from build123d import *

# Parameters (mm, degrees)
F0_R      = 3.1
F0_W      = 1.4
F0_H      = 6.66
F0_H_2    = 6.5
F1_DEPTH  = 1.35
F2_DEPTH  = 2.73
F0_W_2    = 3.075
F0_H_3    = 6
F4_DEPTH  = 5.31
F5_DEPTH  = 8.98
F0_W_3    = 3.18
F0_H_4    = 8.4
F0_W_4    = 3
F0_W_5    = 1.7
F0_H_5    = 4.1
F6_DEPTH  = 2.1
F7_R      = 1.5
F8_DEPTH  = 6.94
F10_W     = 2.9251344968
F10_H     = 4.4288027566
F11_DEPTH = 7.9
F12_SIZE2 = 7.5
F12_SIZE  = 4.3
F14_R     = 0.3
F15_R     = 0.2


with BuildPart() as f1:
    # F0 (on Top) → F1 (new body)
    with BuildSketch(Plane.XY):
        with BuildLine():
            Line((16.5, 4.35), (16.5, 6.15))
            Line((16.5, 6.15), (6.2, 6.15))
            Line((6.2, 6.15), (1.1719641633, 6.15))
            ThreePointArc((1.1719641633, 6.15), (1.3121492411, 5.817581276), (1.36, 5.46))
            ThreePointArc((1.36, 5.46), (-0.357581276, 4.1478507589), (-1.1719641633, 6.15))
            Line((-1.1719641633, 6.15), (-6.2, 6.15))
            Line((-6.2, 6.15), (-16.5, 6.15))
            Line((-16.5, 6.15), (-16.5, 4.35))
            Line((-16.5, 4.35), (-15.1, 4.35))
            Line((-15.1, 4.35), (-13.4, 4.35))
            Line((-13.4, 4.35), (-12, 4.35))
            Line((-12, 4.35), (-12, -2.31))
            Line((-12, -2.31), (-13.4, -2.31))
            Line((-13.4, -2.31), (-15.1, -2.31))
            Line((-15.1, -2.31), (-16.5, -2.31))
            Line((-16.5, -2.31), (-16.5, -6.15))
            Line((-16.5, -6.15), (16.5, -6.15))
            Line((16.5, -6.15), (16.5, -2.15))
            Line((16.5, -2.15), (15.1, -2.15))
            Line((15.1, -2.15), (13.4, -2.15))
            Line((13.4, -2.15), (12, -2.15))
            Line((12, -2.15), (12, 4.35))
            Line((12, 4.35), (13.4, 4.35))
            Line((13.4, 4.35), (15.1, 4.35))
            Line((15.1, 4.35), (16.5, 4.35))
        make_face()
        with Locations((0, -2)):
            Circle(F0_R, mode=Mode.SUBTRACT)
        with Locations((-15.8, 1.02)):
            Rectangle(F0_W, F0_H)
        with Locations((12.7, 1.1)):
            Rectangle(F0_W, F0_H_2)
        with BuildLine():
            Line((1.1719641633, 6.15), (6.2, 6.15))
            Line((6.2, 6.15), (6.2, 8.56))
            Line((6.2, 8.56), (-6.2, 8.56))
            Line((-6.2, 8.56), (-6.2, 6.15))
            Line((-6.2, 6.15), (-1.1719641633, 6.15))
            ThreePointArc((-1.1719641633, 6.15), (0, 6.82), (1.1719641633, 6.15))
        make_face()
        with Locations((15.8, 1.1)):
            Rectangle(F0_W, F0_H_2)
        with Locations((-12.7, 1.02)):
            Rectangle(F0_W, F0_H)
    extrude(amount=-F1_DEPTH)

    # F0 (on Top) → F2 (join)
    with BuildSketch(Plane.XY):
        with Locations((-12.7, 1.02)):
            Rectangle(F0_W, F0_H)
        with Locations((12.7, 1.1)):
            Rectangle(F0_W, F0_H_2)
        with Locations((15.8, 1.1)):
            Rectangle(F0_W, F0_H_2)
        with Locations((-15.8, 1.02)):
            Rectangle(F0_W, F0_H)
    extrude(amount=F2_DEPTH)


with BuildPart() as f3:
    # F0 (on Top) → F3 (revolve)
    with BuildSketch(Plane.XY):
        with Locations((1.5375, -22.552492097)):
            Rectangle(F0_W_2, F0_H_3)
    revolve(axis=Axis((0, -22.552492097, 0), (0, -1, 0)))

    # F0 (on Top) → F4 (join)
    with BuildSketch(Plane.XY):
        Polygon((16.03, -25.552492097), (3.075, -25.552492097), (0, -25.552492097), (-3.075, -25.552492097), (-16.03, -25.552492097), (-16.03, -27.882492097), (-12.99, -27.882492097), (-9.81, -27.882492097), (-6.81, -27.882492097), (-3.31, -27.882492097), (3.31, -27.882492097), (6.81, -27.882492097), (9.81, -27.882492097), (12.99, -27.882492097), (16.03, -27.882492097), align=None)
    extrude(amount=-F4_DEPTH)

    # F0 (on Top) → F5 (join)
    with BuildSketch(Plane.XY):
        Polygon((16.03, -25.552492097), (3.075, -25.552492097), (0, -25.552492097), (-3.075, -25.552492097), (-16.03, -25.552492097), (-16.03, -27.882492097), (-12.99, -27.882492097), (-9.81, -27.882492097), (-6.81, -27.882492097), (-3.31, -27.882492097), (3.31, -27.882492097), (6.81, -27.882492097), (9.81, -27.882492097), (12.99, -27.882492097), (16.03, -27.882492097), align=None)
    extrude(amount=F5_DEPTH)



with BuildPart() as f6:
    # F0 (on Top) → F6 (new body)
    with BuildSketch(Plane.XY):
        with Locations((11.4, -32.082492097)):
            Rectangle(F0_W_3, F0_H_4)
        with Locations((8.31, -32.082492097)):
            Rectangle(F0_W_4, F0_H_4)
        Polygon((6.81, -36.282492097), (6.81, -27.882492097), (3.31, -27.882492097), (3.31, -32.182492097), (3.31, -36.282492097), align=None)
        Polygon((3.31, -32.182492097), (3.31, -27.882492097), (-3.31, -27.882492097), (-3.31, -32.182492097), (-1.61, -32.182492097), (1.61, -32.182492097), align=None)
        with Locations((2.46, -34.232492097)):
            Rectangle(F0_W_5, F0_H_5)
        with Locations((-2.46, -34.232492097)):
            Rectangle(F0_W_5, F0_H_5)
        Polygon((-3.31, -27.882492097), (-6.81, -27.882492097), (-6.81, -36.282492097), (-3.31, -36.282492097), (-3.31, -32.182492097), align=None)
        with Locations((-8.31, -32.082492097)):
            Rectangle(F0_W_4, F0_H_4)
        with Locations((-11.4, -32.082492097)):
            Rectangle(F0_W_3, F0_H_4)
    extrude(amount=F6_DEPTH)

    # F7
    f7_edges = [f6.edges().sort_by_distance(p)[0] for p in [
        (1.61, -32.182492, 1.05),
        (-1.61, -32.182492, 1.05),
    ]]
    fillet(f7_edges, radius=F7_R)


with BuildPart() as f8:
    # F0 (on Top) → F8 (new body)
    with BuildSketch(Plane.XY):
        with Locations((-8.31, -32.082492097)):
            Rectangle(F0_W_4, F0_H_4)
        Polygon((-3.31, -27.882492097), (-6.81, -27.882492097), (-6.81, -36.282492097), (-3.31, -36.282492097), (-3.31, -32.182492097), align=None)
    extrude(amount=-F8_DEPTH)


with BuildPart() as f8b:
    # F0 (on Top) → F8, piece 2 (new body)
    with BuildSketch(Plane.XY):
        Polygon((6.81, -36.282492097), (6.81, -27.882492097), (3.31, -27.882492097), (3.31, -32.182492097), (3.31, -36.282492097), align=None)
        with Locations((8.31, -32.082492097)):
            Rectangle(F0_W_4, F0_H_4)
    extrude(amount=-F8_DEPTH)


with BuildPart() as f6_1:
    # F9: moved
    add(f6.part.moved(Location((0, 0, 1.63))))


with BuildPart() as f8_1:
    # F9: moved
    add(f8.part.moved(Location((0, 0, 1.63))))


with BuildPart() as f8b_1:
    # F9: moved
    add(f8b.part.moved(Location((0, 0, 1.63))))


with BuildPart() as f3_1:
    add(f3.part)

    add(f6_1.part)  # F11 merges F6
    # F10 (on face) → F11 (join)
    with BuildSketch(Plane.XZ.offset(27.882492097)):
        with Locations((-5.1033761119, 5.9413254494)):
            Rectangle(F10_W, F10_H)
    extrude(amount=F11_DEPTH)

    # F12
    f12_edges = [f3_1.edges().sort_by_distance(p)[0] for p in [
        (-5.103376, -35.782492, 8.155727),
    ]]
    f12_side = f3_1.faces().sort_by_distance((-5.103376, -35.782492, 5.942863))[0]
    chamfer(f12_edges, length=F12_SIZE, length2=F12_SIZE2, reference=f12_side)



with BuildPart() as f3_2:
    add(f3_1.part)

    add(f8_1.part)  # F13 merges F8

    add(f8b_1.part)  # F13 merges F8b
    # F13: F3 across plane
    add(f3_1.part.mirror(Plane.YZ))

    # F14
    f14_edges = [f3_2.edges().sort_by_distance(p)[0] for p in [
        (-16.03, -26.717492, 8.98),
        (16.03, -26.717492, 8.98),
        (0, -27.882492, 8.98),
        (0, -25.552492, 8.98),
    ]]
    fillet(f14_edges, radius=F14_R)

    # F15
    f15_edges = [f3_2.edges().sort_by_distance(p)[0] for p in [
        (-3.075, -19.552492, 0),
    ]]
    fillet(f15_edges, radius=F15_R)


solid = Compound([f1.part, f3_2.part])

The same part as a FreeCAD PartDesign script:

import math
import FreeCAD as App
import Part
import Sketcher
Q = App.Units.Quantity


def edges_at(feature, points):
    """Names of the edges that pass closest to the given points."""
    edges = feature.Shape.Edges
    near = lambda p: min(range(len(edges)), key=lambda i: edges[i].distToShape(Part.Vertex(*p))[0])
    return sorted({f"Edge{near(p) + 1}" for p in points})

doc = App.newDocument("Part")
body = doc.addObject("PartDesign::Body", "Body")

# Sketch on XY plane
sketch1 = doc.addObject("Sketcher::SketchObject", "Sketch")
body.addObject(sketch1)
sketch1.AttachmentSupport = (doc.XY_Plane, [""])
sketch1.MapMode = "FlatFace"
sketch1.addGeometry([
    Part.LineSegment(App.Vector(16.5, 6.2, 0), App.Vector(6.2, 6.2, 0)),  # 0
    Part.LineSegment(App.Vector(6.2, 6.2, 0), App.Vector(6.2, 8.6, 0)),  # 1
    Part.LineSegment(App.Vector(6.2, 8.6, 0), App.Vector(-6.2, 8.6, 0)),  # 2
    Part.LineSegment(App.Vector(-6.2, 8.6, 0), App.Vector(-6.2, 6.2, 0)),  # 3
    Part.LineSegment(App.Vector(-6.2, 6.2, 0), App.Vector(-16.5, 6.2, 0)),  # 4
    Part.LineSegment(App.Vector(-16.5, 6.2, 0), App.Vector(-16.5, -6.2, 0)),  # 5
    Part.LineSegment(App.Vector(-16.5, -6.2, 0), App.Vector(16.5, -6.2, 0)),  # 6
    Part.LineSegment(App.Vector(16.5, -6.2, 0), App.Vector(16.5, 6.2, 0)),  # 7
    Part.LineSegment(App.Vector(15.1, -2.1, 0), App.Vector(13.4, -2.1, 0)),  # 8
    Part.LineSegment(App.Vector(13.4, -2.1, 0), App.Vector(13.4, 4.3, 0)),  # 9
    Part.LineSegment(App.Vector(13.4, 4.3, 0), App.Vector(15.1, 4.3, 0)),  # 10
    Part.LineSegment(App.Vector(15.1, 4.3, 0), App.Vector(15.1, -2.1, 0)),  # 11
    Part.ArcOfCircle(Part.Circle(App.Vector(0, 5.5, 0), App.Vector(0, 0, 1), 1.4), math.radians(0), math.radians(30)),  # 12
    Part.ArcOfCircle(Part.Circle(App.Vector(0, 5.5, 0), App.Vector(0, 0, 1), 1.4), math.radians(150), math.radians(360)),  # 13
    Part.ArcOfCircle(Part.Circle(App.Vector(0, 5.5, 0), App.Vector(0, 0, 1), 1.4), math.radians(30), math.radians(150)),  # 14
    Part.LineSegment(App.Vector(-15.1, 4.3, 0), App.Vector(-13.4, 4.3, 0)),  # 15
    Part.LineSegment(App.Vector(-13.4, 4.3, 0), App.Vector(-13.4, -2.3, 0)),  # 16
    Part.LineSegment(App.Vector(-13.4, -2.3, 0), App.Vector(-15.1, -2.3, 0)),  # 17
    Part.LineSegment(App.Vector(-15.1, -2.3, 0), App.Vector(-15.1, 4.3, 0)),  # 18
    Part.Circle(App.Vector(0, -2, 0), App.Vector(0, 0, 1), 3.1),  # 19
], False)
sketch1.addConstraint([
    Sketcher.Constraint("Coincident", 0, 2, 1, 1),
    Sketcher.Constraint("Coincident", 1, 2, 2, 1),
    Sketcher.Constraint("Coincident", 2, 2, 3, 1),
    Sketcher.Constraint("Coincident", 3, 2, 4, 1),
    Sketcher.Constraint("Coincident", 4, 2, 5, 1),
    Sketcher.Constraint("Coincident", 5, 2, 6, 1),
    Sketcher.Constraint("Coincident", 6, 2, 7, 1),
    Sketcher.Constraint("Coincident", 7, 2, 0, 1),
    Sketcher.Constraint("Coincident", 8, 2, 9, 1),
    Sketcher.Constraint("Coincident", 9, 2, 10, 1),
    Sketcher.Constraint("Coincident", 10, 2, 11, 1),
    Sketcher.Constraint("Coincident", 11, 2, 8, 1),
    Sketcher.Constraint("Tangent", 12, 1, 13, 2),
    Sketcher.Constraint("Tangent", 13, 1, 14, 2),
    Sketcher.Constraint("Tangent", 14, 1, 12, 2),
    Sketcher.Constraint("Coincident", 15, 2, 16, 1),
    Sketcher.Constraint("Coincident", 16, 2, 17, 1),
    Sketcher.Constraint("Coincident", 17, 2, 18, 1),
    Sketcher.Constraint("Coincident", 18, 2, 15, 1),
    Sketcher.Constraint("Horizontal", 0),
    Sketcher.Constraint("Vertical", 1),
    Sketcher.Constraint("Horizontal", 2),
    Sketcher.Constraint("Vertical", 3),
    Sketcher.Constraint("Horizontal", 4),
    Sketcher.Constraint("Vertical", 5),
    Sketcher.Constraint("Horizontal", 6),
    Sketcher.Constraint("Vertical", 7),
    Sketcher.Constraint("Horizontal", 8),
    Sketcher.Constraint("Vertical", 9),
    Sketcher.Constraint("Horizontal", 10),
    Sketcher.Constraint("Vertical", 11),
    Sketcher.Constraint("Horizontal", 15),
    Sketcher.Constraint("Vertical", 16),
    Sketcher.Constraint("Horizontal", 17),
    Sketcher.Constraint("Vertical", 18),
    Sketcher.Constraint("Symmetric", 4, 2, 6, 2, -1, 1),
    Sketcher.Constraint("Symmetric", 0, 2, 3, 2, -2),
    Sketcher.Constraint("Symmetric", 13, 1, 14, 1, -2),
    Sketcher.Constraint("Symmetric", 9, 2, 15, 2, -2),
    Sketcher.Constraint("PointOnObject", 19, 3, -2),
    Sketcher.Constraint("Horizontal", 14, 3, 12, 1),
    Sketcher.Constraint("Horizontal", 7, 2, 13, 1),
    Sketcher.Constraint("Equal", 10, 15),
    Sketcher.Constraint("Diameter", 19, Q("6.2 mm")),
    Sketcher.Constraint("DistanceX", 6, 1, 6, 2, Q("33 mm")),
    Sketcher.Constraint("Radius", 12, Q("1.36 mm")),
    Sketcher.Constraint("DistanceX", 0, 2, 0, 1, Q("10.3 mm")),
    Sketcher.Constraint("DistanceX", 8, 2, 8, 1, Q("1.7 mm")),
    Sketcher.Constraint("DistanceY", 5, 2, 5, 1, Q("12.3 mm")),
    Sketcher.Constraint("DistanceY", 9, 1, 9, 2, Q("6.5 mm")),
    Sketcher.Constraint("DistanceY", 19, 3, -1, 1, Q("2 mm")),
    Sketcher.Constraint("DistanceY", 6, 2, 8, 2, Q("4 mm")),
    Sketcher.Constraint("DistanceY", 1, 1, 1, 2, Q("2.41 mm")),
    Sketcher.Constraint("DistanceY", 16, 2, 16, 1, Q("6.66 mm")),
    Sketcher.Constraint("DistanceX", -1, 1, 8, 2, Q("13.4 mm")),
    Sketcher.Constraint("DistanceY", 13, 3, 1, 2, Q("3.1 mm")),
])
pad1 = doc.addObject("PartDesign::Pad", "Pad")
body.addObject(pad1)
pad1.Profile = sketch1
pad1.Length = 1.35
pad1.Reversed = True

# Sketch on XY plane
sketch2 = doc.addObject("Sketcher::SketchObject", "Sketch001")
body.addObject(sketch2)
sketch2.AttachmentSupport = (doc.XY_Plane, [""])
sketch2.MapMode = "FlatFace"
sketch2.addGeometry([
    Part.LineSegment(App.Vector(-13.4, 4.3, 0), App.Vector(-13.4, -2.3, 0)),  # 0
    Part.LineSegment(App.Vector(-13.4, -2.3, 0), App.Vector(-12, -2.3, 0)),  # 1
    Part.LineSegment(App.Vector(-12, -2.3, 0), App.Vector(-12, 4.3, 0)),  # 2
    Part.LineSegment(App.Vector(-12, 4.3, 0), App.Vector(-13.4, 4.3, 0)),  # 3
    Part.LineSegment(App.Vector(12, 4.3, 0), App.Vector(12, -2.1, 0)),  # 4
    Part.LineSegment(App.Vector(12, -2.1, 0), App.Vector(13.4, -2.1, 0)),  # 5
    Part.LineSegment(App.Vector(13.4, -2.1, 0), App.Vector(13.4, 4.3, 0)),  # 6
    Part.LineSegment(App.Vector(13.4, 4.3, 0), App.Vector(12, 4.3, 0)),  # 7
    Part.LineSegment(App.Vector(15.1, 4.3, 0), App.Vector(15.1, -2.1, 0)),  # 8
    Part.LineSegment(App.Vector(15.1, -2.1, 0), App.Vector(16.5, -2.1, 0)),  # 9
    Part.LineSegment(App.Vector(16.5, -2.1, 0), App.Vector(16.5, 4.3, 0)),  # 10
    Part.LineSegment(App.Vector(16.5, 4.3, 0), App.Vector(15.1, 4.3, 0)),  # 11
    Part.LineSegment(App.Vector(-16.5, 4.3, 0), App.Vector(-16.5, -2.3, 0)),  # 12
    Part.LineSegment(App.Vector(-16.5, -2.3, 0), App.Vector(-15.1, -2.3, 0)),  # 13
    Part.LineSegment(App.Vector(-15.1, -2.3, 0), App.Vector(-15.1, 4.3, 0)),  # 14
    Part.LineSegment(App.Vector(-15.1, 4.3, 0), App.Vector(-16.5, 4.3, 0)),  # 15
], False)
sketch2.addConstraint([
    Sketcher.Constraint("Coincident", 0, 2, 1, 1),
    Sketcher.Constraint("Coincident", 1, 2, 2, 1),
    Sketcher.Constraint("Coincident", 2, 2, 3, 1),
    Sketcher.Constraint("Coincident", 3, 2, 0, 1),
    Sketcher.Constraint("Coincident", 4, 2, 5, 1),
    Sketcher.Constraint("Coincident", 5, 2, 6, 1),
    Sketcher.Constraint("Coincident", 6, 2, 7, 1),
    Sketcher.Constraint("Coincident", 7, 2, 4, 1),
    Sketcher.Constraint("Coincident", 8, 2, 9, 1),
    Sketcher.Constraint("Coincident", 9, 2, 10, 1),
    Sketcher.Constraint("Coincident", 10, 2, 11, 1),
    Sketcher.Constraint("Coincident", 11, 2, 8, 1),
    Sketcher.Constraint("Coincident", 12, 2, 13, 1),
    Sketcher.Constraint("Coincident", 13, 2, 14, 1),
    Sketcher.Constraint("Coincident", 14, 2, 15, 1),
    Sketcher.Constraint("Coincident", 15, 2, 12, 1),
    Sketcher.Constraint("Vertical", 0),
    Sketcher.Constraint("Horizontal", 1),
    Sketcher.Constraint("Vertical", 2),
    Sketcher.Constraint("Horizontal", 3),
    Sketcher.Constraint("Vertical", 4),
    Sketcher.Constraint("Horizontal", 5),
    Sketcher.Constraint("Vertical", 6),
    Sketcher.Constraint("Horizontal", 7),
    Sketcher.Constraint("Vertical", 8),
    Sketcher.Constraint("Horizontal", 9),
    Sketcher.Constraint("Vertical", 10),
    Sketcher.Constraint("Horizontal", 11),
    Sketcher.Constraint("Vertical", 12),
    Sketcher.Constraint("Horizontal", 13),
    Sketcher.Constraint("Vertical", 14),
    Sketcher.Constraint("Horizontal", 15),
    Sketcher.Constraint("Symmetric", 3, 2, 6, 2, -2),
    Sketcher.Constraint("Symmetric", 11, 2, 14, 2, -2),
    Sketcher.Constraint("Horizontal", 5, 2, 8, 2),
    Sketcher.Constraint("Horizontal", 7, 2, 10, 2),
    Sketcher.Constraint("Horizontal", 1, 2, 12, 2),
    Sketcher.Constraint("Equal", 3, 5),
    Sketcher.Constraint("Equal", 7, 9),
    Sketcher.Constraint("Equal", 11, 13),
    Sketcher.Constraint("DistanceX", 1, 1, 1, 2, Q("1.4 mm")),
    Sketcher.Constraint("DistanceY", 4, 2, 4, 1, Q("6.5 mm")),
    Sketcher.Constraint("DistanceX", 1, 2, -1, 1, Q("12 mm")),
    Sketcher.Constraint("DistanceY", 0, 2, 0, 1, Q("6.66 mm")),
    Sketcher.Constraint("DistanceX", -1, 1, 8, 2, Q("15.1 mm")),
    Sketcher.Constraint("DistanceY", 0, 2, -1, 1, Q("2.31 mm")),
])
pad2 = doc.addObject("PartDesign::Pad", "Pad001")
body.addObject(pad2)
pad2.Profile = sketch2
pad2.Length = 2.73
body2 = doc.addObject("PartDesign::Body", "Body001")

# Sketch on XY plane
sketch3 = doc.addObject("Sketcher::SketchObject", "Sketch002")
body2.addObject(sketch3)
sketch3.AttachmentSupport = (doc.getObject("XY_Plane001"), [""])
sketch3.MapMode = "FlatFace"
sketch3.addGeometry([
    Part.LineSegment(App.Vector(0, -19.6, 0), App.Vector(0, -25.6, 0)),
    Part.LineSegment(App.Vector(0, -25.6, 0), App.Vector(3.1, -25.6, 0)),
    Part.LineSegment(App.Vector(3.1, -25.6, 0), App.Vector(3.1, -19.6, 0)),
    Part.LineSegment(App.Vector(3.1, -19.6, 0), App.Vector(0, -19.6, 0)),
], False)
sketch3.addConstraint([
    Sketcher.Constraint("Coincident", 0, 2, 1, 1),
    Sketcher.Constraint("Coincident", 1, 2, 2, 1),
    Sketcher.Constraint("Coincident", 2, 2, 3, 1),
    Sketcher.Constraint("Coincident", 3, 2, 0, 1),
    Sketcher.Constraint("Vertical", 0),
    Sketcher.Constraint("Horizontal", 1),
    Sketcher.Constraint("Vertical", 2),
    Sketcher.Constraint("Horizontal", 3),
    Sketcher.Constraint("PointOnObject", 0, 2, -2),
    Sketcher.Constraint("DistanceY", 0, 2, 0, 1, Q("6 mm")),
    Sketcher.Constraint("DistanceX", 1, 1, 1, 2, Q("3.075 mm")),
    Sketcher.Constraint("DistanceY", 0, 2, -1, 1, Q("25.552492 mm")),
])
revolution = doc.addObject("PartDesign::Revolution", "Revolution")
body2.addObject(revolution)
revolution.Profile = sketch3
revolution.ReferenceAxis = (sketch3, ["V_Axis"])
revolution.Angle = 360

# Sketch on XY plane
sketch4 = doc.addObject("Sketcher::SketchObject", "Sketch003")
body2.addObject(sketch4)
sketch4.AttachmentSupport = (doc.getObject("XY_Plane001"), [""])
sketch4.MapMode = "FlatFace"
sketch4.addGeometry([
    Part.LineSegment(App.Vector(16, -25.6, 0), App.Vector(-16, -25.6, 0)),
    Part.LineSegment(App.Vector(-16, -25.6, 0), App.Vector(-16, -27.9, 0)),
    Part.LineSegment(App.Vector(-16, -27.9, 0), App.Vector(16, -27.9, 0)),
    Part.LineSegment(App.Vector(16, -27.9, 0), App.Vector(16, -25.6, 0)),
], False)
sketch4.addConstraint([
    Sketcher.Constraint("Coincident", 0, 2, 1, 1),
    Sketcher.Constraint("Coincident", 1, 2, 2, 1),
    Sketcher.Constraint("Coincident", 2, 2, 3, 1),
    Sketcher.Constraint("Coincident", 3, 2, 0, 1),
    Sketcher.Constraint("Horizontal", 0),
    Sketcher.Constraint("Vertical", 1),
    Sketcher.Constraint("Horizontal", 2),
    Sketcher.Constraint("Vertical", 3),
    Sketcher.Constraint("DistanceX", 0, 2, 0, 1, Q("32.06 mm")),
    Sketcher.Constraint("DistanceY", 1, 2, 1, 1, Q("2.33 mm")),
    Sketcher.Constraint("DistanceX", 0, 2, -1, 1, Q("16.03 mm")),
    Sketcher.Constraint("DistanceY", 0, 2, -1, 1, Q("25.552492 mm")),
])
pad3 = doc.addObject("PartDesign::Pad", "Pad002")
body2.addObject(pad3)
pad3.Profile = sketch4
pad3.Length = 5.31
pad3.Reversed = True

# Sketch on XY plane
sketch5 = doc.addObject("Sketcher::SketchObject", "Sketch004")
body2.addObject(sketch5)
sketch5.AttachmentSupport = (doc.getObject("XY_Plane001"), [""])
sketch5.MapMode = "FlatFace"
sketch5.addGeometry([
    Part.LineSegment(App.Vector(16, -25.6, 0), App.Vector(-16, -25.6, 0)),
    Part.LineSegment(App.Vector(-16, -25.6, 0), App.Vector(-16, -27.9, 0)),
    Part.LineSegment(App.Vector(-16, -27.9, 0), App.Vector(16, -27.9, 0)),
    Part.LineSegment(App.Vector(16, -27.9, 0), App.Vector(16, -25.6, 0)),
], False)
sketch5.addConstraint([
    Sketcher.Constraint("Coincident", 0, 2, 1, 1),
    Sketcher.Constraint("Coincident", 1, 2, 2, 1),
    Sketcher.Constraint("Coincident", 2, 2, 3, 1),
    Sketcher.Constraint("Coincident", 3, 2, 0, 1),
    Sketcher.Constraint("Horizontal", 0),
    Sketcher.Constraint("Vertical", 1),
    Sketcher.Constraint("Horizontal", 2),
    Sketcher.Constraint("Vertical", 3),
    Sketcher.Constraint("DistanceX", 0, 2, 0, 1, Q("32.06 mm")),
    Sketcher.Constraint("DistanceY", 1, 2, 1, 1, Q("2.33 mm")),
    Sketcher.Constraint("DistanceX", 0, 2, -1, 1, Q("16.03 mm")),
    Sketcher.Constraint("DistanceY", 0, 2, -1, 1, Q("25.552492 mm")),
])
pad4 = doc.addObject("PartDesign::Pad", "Pad003")
body2.addObject(pad4)
pad4.Profile = sketch5
pad4.Length = 8.98
body3 = doc.addObject("PartDesign::Body", "Body002")

# Sketch on XY plane
sketch6 = doc.addObject("Sketcher::SketchObject", "Sketch005")
body3.addObject(sketch6)
sketch6.AttachmentSupport = (doc.getObject("XY_Plane002"), [""])
sketch6.MapMode = "FlatFace"
sketch6.addGeometry([
    Part.LineSegment(App.Vector(13, -36.3, 0), App.Vector(13, -27.9, 0)),  # 0
    Part.LineSegment(App.Vector(13, -27.9, 0), App.Vector(-13, -27.9, 0)),  # 1
    Part.LineSegment(App.Vector(-13, -27.9, 0), App.Vector(-13, -36.3, 0)),  # 2
    Part.LineSegment(App.Vector(-13, -36.3, 0), App.Vector(-1.6, -36.3, 0)),  # 3
    Part.LineSegment(App.Vector(-1.6, -36.3, 0), App.Vector(-1.6, -32.2, 0)),  # 4
    Part.LineSegment(App.Vector(-1.6, -32.2, 0), App.Vector(1.6, -32.2, 0)),  # 5
    Part.LineSegment(App.Vector(1.6, -32.2, 0), App.Vector(1.6, -36.3, 0)),  # 6
    Part.LineSegment(App.Vector(1.6, -36.3, 0), App.Vector(13, -36.3, 0)),  # 7
], False)
sketch6.addConstraint([
    Sketcher.Constraint("Coincident", 0, 2, 1, 1),
    Sketcher.Constraint("Coincident", 1, 2, 2, 1),
    Sketcher.Constraint("Coincident", 2, 2, 3, 1),
    Sketcher.Constraint("Coincident", 3, 2, 4, 1),
    Sketcher.Constraint("Coincident", 4, 2, 5, 1),
    Sketcher.Constraint("Coincident", 5, 2, 6, 1),
    Sketcher.Constraint("Coincident", 6, 2, 7, 1),
    Sketcher.Constraint("Coincident", 7, 2, 0, 1),
    Sketcher.Constraint("Vertical", 0),
    Sketcher.Constraint("Horizontal", 1),
    Sketcher.Constraint("Vertical", 2),
    Sketcher.Constraint("Horizontal", 3),
    Sketcher.Constraint("Vertical", 4),
    Sketcher.Constraint("Horizontal", 5),
    Sketcher.Constraint("Vertical", 6),
    Sketcher.Constraint("Horizontal", 7),
    Sketcher.Constraint("Symmetric", 3, 2, 6, 2, -2),
    Sketcher.Constraint("Equal", 3, 7),
    Sketcher.Constraint("DistanceY", 0, 1, 0, 2, Q("8.4 mm")),
    Sketcher.Constraint("DistanceY", 4, 1, 4, 2, Q("4.1 mm")),
    Sketcher.Constraint("DistanceX", 1, 2, 1, 1, Q("25.98 mm")),
    Sketcher.Constraint("DistanceX", 3, 1, 3, 2, Q("11.38 mm")),
    Sketcher.Constraint("DistanceY", 0, 2, -1, 1, Q("27.882492 mm")),
])
pad5 = doc.addObject("PartDesign::Pad", "Pad004")
body3.addObject(pad5)
pad5.Profile = sketch6
pad5.Length = 2.1
doc.recompute()

fillet = doc.addObject("PartDesign::Fillet", "Fillet")
body3.addObject(fillet)
fillet.Base = (pad5, edges_at(pad5, [(1.61, -32.182, 1.05), (-1.61, -32.182, 1.05)]))
fillet.Radius = 1.5
body4 = doc.addObject("PartDesign::Body", "Body003")

# Sketch on XY plane
sketch7 = doc.addObject("Sketcher::SketchObject", "Sketch006")
body4.addObject(sketch7)
sketch7.AttachmentSupport = (doc.getObject("XY_Plane003"), [""])
sketch7.MapMode = "FlatFace"
sketch7.addGeometry([
    Part.LineSegment(App.Vector(-10, -28, 0), App.Vector(-10, -36, 0)),
    Part.LineSegment(App.Vector(-10, -36, 0), App.Vector(-3, -36, 0)),
    Part.LineSegment(App.Vector(-3, -36, 0), App.Vector(-3, -28, 0)),
    Part.LineSegment(App.Vector(-3, -28, 0), App.Vector(-10, -28, 0)),
], False)
sketch7.addConstraint([
    Sketcher.Constraint("Coincident", 0, 2, 1, 1),
    Sketcher.Constraint("Coincident", 1, 2, 2, 1),
    Sketcher.Constraint("Coincident", 2, 2, 3, 1),
    Sketcher.Constraint("Coincident", 3, 2, 0, 1),
    Sketcher.Constraint("Vertical", 0),
    Sketcher.Constraint("Horizontal", 1),
    Sketcher.Constraint("Vertical", 2),
    Sketcher.Constraint("Horizontal", 3),
    Sketcher.Constraint("DistanceX", 1, 1, 1, 2, Q("6.5 mm")),
    Sketcher.Constraint("DistanceY", 0, 2, 0, 1, Q("8.4 mm")),
    Sketcher.Constraint("DistanceX", 0, 2, -1, 1, Q("9.81 mm")),
    Sketcher.Constraint("DistanceY", 0, 2, -1, 1, Q("36.282492 mm")),
])
pad6 = doc.addObject("PartDesign::Pad", "Pad005")
body4.addObject(pad6)
pad6.Profile = sketch7
pad6.Length = 6.94
pad6.Reversed = True
body5 = doc.addObject("PartDesign::Body", "Body004")

# Sketch on XY plane
sketch8 = doc.addObject("Sketcher::SketchObject", "Sketch007")
body5.addObject(sketch8)
sketch8.AttachmentSupport = (doc.getObject("XY_Plane004"), [""])
sketch8.MapMode = "FlatFace"
sketch8.addGeometry([
    Part.LineSegment(App.Vector(3, -28, 0), App.Vector(3, -36, 0)),
    Part.LineSegment(App.Vector(3, -36, 0), App.Vector(10, -36, 0)),
    Part.LineSegment(App.Vector(10, -36, 0), App.Vector(10, -28, 0)),
    Part.LineSegment(App.Vector(10, -28, 0), App.Vector(3, -28, 0)),
], False)
sketch8.addConstraint([
    Sketcher.Constraint("Coincident", 0, 2, 1, 1),
    Sketcher.Constraint("Coincident", 1, 2, 2, 1),
    Sketcher.Constraint("Coincident", 2, 2, 3, 1),
    Sketcher.Constraint("Coincident", 3, 2, 0, 1),
    Sketcher.Constraint("Vertical", 0),
    Sketcher.Constraint("Horizontal", 1),
    Sketcher.Constraint("Vertical", 2),
    Sketcher.Constraint("Horizontal", 3),
    Sketcher.Constraint("DistanceX", 1, 1, 1, 2, Q("6.5 mm")),
    Sketcher.Constraint("DistanceY", 0, 2, 0, 1, Q("8.4 mm")),
    Sketcher.Constraint("DistanceX", -1, 1, 0, 2, Q("3.31 mm")),
    Sketcher.Constraint("DistanceY", 0, 2, -1, 1, Q("36.282492 mm")),
])
pad7 = doc.addObject("PartDesign::Pad", "Pad006")
body5.addObject(pad7)
pad7.Profile = sketch8
pad7.Length = 6.94
pad7.Reversed = True
body6 = doc.addObject("PartDesign::Body", "Body005")
doc.recompute()

body3.Placement = App.Placement(App.Vector(0, 0, 1.63), App.Rotation(App.Vector(0, 0, 1), 0))
boolean = doc.addObject("PartDesign::Boolean", "Boolean")
body6.addObject(boolean)
boolean.Type = "Fuse"
boolean.addObjects([body3])
body7 = doc.addObject("PartDesign::Body", "Body006")
doc.recompute()

body4.Placement = App.Placement(App.Vector(0, 0, 1.63), App.Rotation(App.Vector(0, 0, 1), 0))
boolean2 = doc.addObject("PartDesign::Boolean", "Boolean001")
body7.addObject(boolean2)
boolean2.Type = "Fuse"
boolean2.addObjects([body4])
body8 = doc.addObject("PartDesign::Body", "Body007")
doc.recompute()

body5.Placement = App.Placement(App.Vector(0, 0, 1.63), App.Rotation(App.Vector(0, 0, 1), 0))
boolean3 = doc.addObject("PartDesign::Boolean", "Boolean002")
body8.addObject(boolean3)
boolean3.Type = "Fuse"
boolean3.addObjects([body5])
doc.recompute()

boolean4 = doc.addObject("PartDesign::Boolean", "Boolean003")
body2.addObject(boolean4)
boolean4.Type = "Fuse"
boolean4.addObjects([body6])

# Sketch on XZ plane
sketch9 = doc.addObject("Sketcher::SketchObject", "Sketch008")
body2.addObject(sketch9)
sketch9.AttachmentSupport = (doc.getObject("XZ_Plane001"), [""])
sketch9.MapMode = "FlatFace"
sketch9.AttachmentOffset = App.Placement(App.Vector(0, 0, 27.882492), App.Rotation())
sketch9.addGeometry([
    Part.LineSegment(App.Vector(-6.6, 8.2, 0), App.Vector(-6.6, 3.7, 0)),
    Part.LineSegment(App.Vector(-6.6, 3.7, 0), App.Vector(-3.6, 3.7, 0)),
    Part.LineSegment(App.Vector(-3.6, 3.7, 0), App.Vector(-3.6, 8.2, 0)),
    Part.LineSegment(App.Vector(-3.6, 8.2, 0), App.Vector(-6.6, 8.2, 0)),
], False)
sketch9.addConstraint([
    Sketcher.Constraint("Coincident", 0, 2, 1, 1),
    Sketcher.Constraint("Coincident", 1, 2, 2, 1),
    Sketcher.Constraint("Coincident", 2, 2, 3, 1),
    Sketcher.Constraint("Coincident", 3, 2, 0, 1),
    Sketcher.Constraint("Vertical", 0),
    Sketcher.Constraint("Horizontal", 1),
    Sketcher.Constraint("Vertical", 2),
    Sketcher.Constraint("Horizontal", 3),
    Sketcher.Constraint("DistanceX", 1, 1, 1, 2, Q("2.925134 mm")),
    Sketcher.Constraint("DistanceY", 0, 2, 0, 1, Q("4.428803 mm")),
    Sketcher.Constraint("DistanceX", 1, 2, -1, 1, Q("3.640809 mm")),
    Sketcher.Constraint("DistanceY", -1, 1, 0, 2, Q("3.726924 mm")),
])
pad8 = doc.addObject("PartDesign::Pad", "Pad007")
body2.addObject(pad8)
pad8.Profile = sketch9
pad8.Length = 7.9
doc.recompute()

chamfer = doc.addObject("PartDesign::Chamfer", "Chamfer")
body2.addObject(chamfer)
chamfer.Base = (pad8, edges_at(pad8, [(-5.103, -35.782, 8.156)]))
chamfer.ChamferType = "Two distances"
chamfer.Size = 4.3
chamfer.Size2 = 7.5
chamfer.FlipDirection = True
body9 = doc.addObject("PartDesign::Body", "Body008")
doc.recompute()

body9.BaseFeature = body2
doc.recompute()

boolean5 = doc.addObject("PartDesign::Boolean", "Boolean004")
body9.addObject(boolean5)
boolean5.Type = "Fuse"
boolean5.addObjects([body7])
doc.recompute()

boolean6 = doc.addObject("PartDesign::Boolean", "Boolean005")
body9.addObject(boolean6)
boolean6.Type = "Fuse"
boolean6.addObjects([body8])
doc.recompute()

mirroring = doc.addObject("Part::Mirroring", "Mirroring")
mirroring.Source = body2
mirroring.Base = App.Vector(0, 0, 0)
mirroring.Normal = App.Vector(1, 0, 0)
body10 = doc.addObject("PartDesign::Body", "Body009")
body10.BaseFeature = mirroring
boolean7 = doc.addObject("PartDesign::Boolean", "Boolean006")
body9.addObject(boolean7)
boolean7.Type = "Fuse"
boolean7.addObjects([body10])
doc.recompute()

fillet2 = doc.addObject("PartDesign::Fillet", "Fillet001")
body9.addObject(fillet2)
fillet2.Base = (boolean7, edges_at(boolean7, [
    (-16.03, -26.717, 8.98),
    (16.03, -26.717, 8.98),
    (0, -27.882, 8.98),
    (0, -25.552, 8.98),
]))
fillet2.Radius = 0.3
doc.recompute()

fillet3 = doc.addObject("PartDesign::Fillet", "Fillet002")
body9.addObject(fillet3)
fillet3.Base = (fillet2, edges_at(fillet2, [(-3.075, -19.552, 0)]))
fillet3.Radius = 0.2
mirroring.Visibility = False

doc.recompute()
